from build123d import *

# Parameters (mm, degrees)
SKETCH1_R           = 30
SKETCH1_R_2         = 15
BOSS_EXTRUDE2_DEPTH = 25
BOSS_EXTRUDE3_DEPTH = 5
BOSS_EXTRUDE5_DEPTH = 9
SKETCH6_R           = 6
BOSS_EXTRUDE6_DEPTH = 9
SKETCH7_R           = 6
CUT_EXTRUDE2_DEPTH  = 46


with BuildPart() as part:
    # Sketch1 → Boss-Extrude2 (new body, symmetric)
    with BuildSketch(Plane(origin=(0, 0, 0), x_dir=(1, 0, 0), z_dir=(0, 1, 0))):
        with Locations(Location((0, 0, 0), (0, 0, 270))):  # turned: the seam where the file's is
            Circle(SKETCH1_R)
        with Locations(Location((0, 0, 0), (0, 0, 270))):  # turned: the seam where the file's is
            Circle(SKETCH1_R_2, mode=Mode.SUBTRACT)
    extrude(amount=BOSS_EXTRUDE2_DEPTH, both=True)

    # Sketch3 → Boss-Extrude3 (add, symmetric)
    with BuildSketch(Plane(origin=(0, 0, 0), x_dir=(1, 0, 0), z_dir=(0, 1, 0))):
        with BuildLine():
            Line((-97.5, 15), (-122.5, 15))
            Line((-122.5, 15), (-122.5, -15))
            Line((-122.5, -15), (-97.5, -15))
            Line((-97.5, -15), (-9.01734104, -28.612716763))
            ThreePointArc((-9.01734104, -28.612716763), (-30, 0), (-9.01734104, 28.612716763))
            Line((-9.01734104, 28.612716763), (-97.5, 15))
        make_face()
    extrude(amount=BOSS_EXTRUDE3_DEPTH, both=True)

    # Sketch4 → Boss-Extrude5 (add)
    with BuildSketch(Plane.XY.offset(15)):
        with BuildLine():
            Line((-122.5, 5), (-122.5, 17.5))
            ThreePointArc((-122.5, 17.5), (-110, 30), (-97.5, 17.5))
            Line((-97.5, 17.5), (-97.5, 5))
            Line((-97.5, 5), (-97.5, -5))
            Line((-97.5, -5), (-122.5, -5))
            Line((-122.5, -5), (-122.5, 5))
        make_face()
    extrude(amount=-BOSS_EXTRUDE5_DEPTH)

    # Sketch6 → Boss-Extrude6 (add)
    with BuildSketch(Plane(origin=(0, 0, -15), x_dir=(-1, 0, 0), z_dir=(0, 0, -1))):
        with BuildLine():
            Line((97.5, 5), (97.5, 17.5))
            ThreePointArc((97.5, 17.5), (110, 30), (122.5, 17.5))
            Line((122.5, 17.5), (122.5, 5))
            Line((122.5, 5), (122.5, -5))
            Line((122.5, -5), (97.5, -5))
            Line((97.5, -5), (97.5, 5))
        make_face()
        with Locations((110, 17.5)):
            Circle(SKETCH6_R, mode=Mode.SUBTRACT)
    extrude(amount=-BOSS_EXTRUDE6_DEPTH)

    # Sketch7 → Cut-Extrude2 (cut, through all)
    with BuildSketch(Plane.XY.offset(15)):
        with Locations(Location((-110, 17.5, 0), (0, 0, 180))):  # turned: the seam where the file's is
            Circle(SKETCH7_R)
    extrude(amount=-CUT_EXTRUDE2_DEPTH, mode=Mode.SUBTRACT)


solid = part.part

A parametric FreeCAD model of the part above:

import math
import FreeCAD as App
import Part
import Sketcher
from FreeCAD import Vector

doc = App.newDocument("Part")
body = doc.addObject("PartDesign::Body", "Body")

# Sketch on XZ plane
sketch1 = body.newObject("Sketcher::SketchObject", "Sketch")
sketch1.AttachmentSupport = (doc.getObject("XZ_Plane"), [""])
sketch1.MapMode = "FlatFace"
sketch1.addGeometry(Part.Circle(Vector(0, 0, 0), Vector(0, 0, 1), 30), False)
sketch1.addGeometry(Part.Circle(Vector(0, 0, 0), Vector(0, 0, 1), 15), False)
sketch1.addConstraint(Sketcher.Constraint("Coincident", 0, 3, -1, 1))
sketch1.addConstraint(Sketcher.Constraint("Coincident", 1, 3, -1, 1))
sketch1.addConstraint(Sketcher.Constraint("Diameter", 0, 60.0))
sketch1.addConstraint(Sketcher.Constraint("Diameter", 1, 30.0))
pad1 = body.newObject("PartDesign::Pad", "Pad")
pad1.Profile = sketch1
pad1.Length = 50
pad1.Midplane = True

# Sketch on XZ plane
sketch2 = body.newObject("Sketcher::SketchObject", "Sketch001")
sketch2.AttachmentSupport = (doc.getObject("XZ_Plane"), [""])
sketch2.MapMode = "FlatFace"
sketch2.addGeometry(Part.LineSegment(Vector(-98, -15, 0), Vector(-122, -15, 0)), False)
sketch2.addGeometry(Part.LineSegment(Vector(-122, -15, 0), Vector(-122, 15, 0)), False)
sketch2.addGeometry(Part.LineSegment(Vector(-122, 15, 0), Vector(-98, 15, 0)), False)
sketch2.addGeometry(Part.LineSegment(Vector(-98, 15, 0), Vector(-9, 29, 0)), False)
sketch2.addGeometry(Part.ArcOfCircle(Part.Circle(Vector(0, 0, 0), Vector(0, 0, 1), 30), math.radians(107), math.radians(253)), False)
sketch2.addGeometry(Part.LineSegment(Vector(-9, -29, 0), Vector(-98, -15, 0)), False)
sketch2.addConstraint(Sketcher.Constraint("Coincident", 0, 2, 1, 1))
sketch2.addConstraint(Sketcher.Constraint("Coincident", 1, 2, 2, 1))
sketch2.addConstraint(Sketcher.Constraint("Coincident", 2, 2, 3, 1))
sketch2.addConstraint(Sketcher.Constraint("Coincident", 3, 2, 4, 1))
sketch2.addConstraint(Sketcher.Constraint("Coincident", 4, 2, 5, 1))
sketch2.addConstraint(Sketcher.Constraint("Coincident", 5, 2, 0, 1))
sketch2.addConstraint(Sketcher.Constraint("Horizontal", 0))
sketch2.addConstraint(Sketcher.Constraint("Vertical", 1))
sketch2.addConstraint(Sketcher.Constraint("Horizontal", 2))
sketch2.addConstraint(Sketcher.Constraint("Coincident", 4, 3, -1, 1))
sketch2.addConstraint(Sketcher.Constraint("Symmetric", 2, 2, 5, 2, -1))
sketch2.addConstraint(Sketcher.Constraint("Vertical", 3, 2, 4, 2))
sketch2.addConstraint(Sketcher.Constraint("Radius", 4, 30.0))
sketch2.addConstraint(Sketcher.Constraint("DistanceX", 0, 2, 0, 1, 25.0))
sketch2.addConstraint(Sketcher.Constraint("DistanceY", 1, 1, 1, 2, 30.0))
sketch2.addConstraint(Sketcher.Constraint("DistanceX", 0, 2, -1, 1, 122.5))
sketch2.addConstraint(Sketcher.Constraint("DistanceX", 3, 2, -1, 1, 9.017341))
pad2 = body.newObject("PartDesign::Pad", "Pad001")
pad2.Profile = sketch2
pad2.Length = 10
pad2.Midplane = True

# Sketch on XY plane
sketch3 = body.newObject("Sketcher::SketchObject", "Sketch002")
sketch3.AttachmentSupport = (doc.getObject("XY_Plane"), [""])
sketch3.MapMode = "FlatFace"
sketch3.AttachmentOffset = App.Placement(Vector(0, 0, 15), App.Rotation())
sketch3.addGeometry(Part.ArcOfCircle(Part.Circle(Vector(-110, 18, 0), Vector(0, 0, 1), 12), math.radians(0), math.radians(180)), False)
sketch3.addGeometry(Part.LineSegment(Vector(-122, 18, 0), Vector(-122, -5, 0)), False)
sketch3.addGeometry(Part.LineSegment(Vector(-122, -5, 0), Vector(-98, -5, 0)), False)
sketch3.addGeometry(Part.LineSegment(Vector(-98, -5, 0), Vector(-98, 18, 0)), False)
sketch3.addConstraint(Sketcher.Constraint("Tangent", 0, 2, 1, 1))
sketch3.addConstraint(Sketcher.Constraint("Coincident", 1, 2, 2, 1))
sketch3.addConstraint(Sketcher.Constraint("Coincident", 2, 2, 3, 1))
sketch3.addConstraint(Sketcher.Constraint("Tangent", 3, 2, 0, 1))
sketch3.addConstraint(Sketcher.Constraint("Vertical", 1))
sketch3.addConstraint(Sketcher.Constraint("Horizontal", 2))
sketch3.addConstraint(Sketcher.Constraint("Vertical", 3))
sketch3.addConstraint(Sketcher.Constraint("Radius", 0, 12.5))
sketch3.addConstraint(Sketcher.Constraint("DistanceY", 1, 2, 1, 1, 22.5))
sketch3.addConstraint(Sketcher.Constraint("DistanceX", 0, 3, -1, 1, 110.0))
sketch3.addConstraint(Sketcher.Constraint("DistanceY", 1, 2, -1, 1, 5.0))
pad3 = body.newObject("PartDesign::Pad", "Pad002")
pad3.Profile = sketch3
pad3.Length = 9
pad3.Reversed = True

# Sketch on XY plane
sketch4 = body.newObject("Sketcher::SketchObject", "Sketch003")
sketch4.AttachmentSupport = (doc.getObject("XY_Plane"), [""])
sketch4.MapMode = "FlatFace"
sketch4.AttachmentOffset = App.Placement(Vector(0, 0, -15), App.Rotation())
sketch4.addGeometry(Part.ArcOfCircle(Part.Circle(Vector(-110, 18, 0), Vector(0, 0, 1), 12), math.radians(0), math.radians(180)), False)
sketch4.addGeometry(Part.LineSegment(Vector(-98, 18, 0), Vector(-98, -5, 0)), False)
sketch4.addGeometry(Part.LineSegment(Vector(-98, -5, 0), Vector(-122, -5, 0)), False)
sketch4.addGeometry(Part.LineSegment(Vector(-122, -5, 0), Vector(-122, 18, 0)), False)
sketch4.addGeometry(Part.Circle(Vector(-110, 18, 0), Vector(0, 0, 1), 6), False)
sketch4.addConstraint(Sketcher.Constraint("Tangent", 0, 1, 1, 1))
sketch4.addConstraint(Sketcher.Constraint("Coincident", 1, 2, 2, 1))
sketch4.addConstraint(Sketcher.Constraint("Coincident", 2, 2, 3, 1))
sketch4.addConstraint(Sketcher.Constraint("Tangent", 3, 2, 0, 2))
sketch4.addConstraint(Sketcher.Constraint("Vertical", 1))
sketch4.addConstraint(Sketcher.Constraint("Horizontal", 2))
sketch4.addConstraint(Sketcher.Constraint("Vertical", 3))
sketch4.addConstraint(Sketcher.Constraint("Coincident", 4, 3, 0, 3))
sketch4.addConstraint(Sketcher.Constraint("Diameter", 4, 12.0))
sketch4.addConstraint(Sketcher.Constraint("Radius", 0, 12.5))
sketch4.addConstraint(Sketcher.Constraint("DistanceY", 1, 2, 1, 1, 22.5))
sketch4.addConstraint(Sketcher.Constraint("DistanceX", 0, 3, -1, 1, 110.0))
sketch4.addConstraint(Sketcher.Constraint("DistanceY", 1, 2, -1, 1, 5.0))
pad4 = body.newObject("PartDesign::Pad", "Pad003")
pad4.Profile = sketch4
pad4.Length = 9

# Sketch on XY plane
sketch5 = body.newObject("Sketcher::SketchObject", "Sketch004")
sketch5.AttachmentSupport = (doc.getObject("XY_Plane"), [""])
sketch5.MapMode = "FlatFace"
sketch5.AttachmentOffset = App.Placement(Vector(0, 0, 15), App.Rotation())
sketch5.addGeometry(Part.Circle(Vector(-110, 18, 0), Vector(0, 0, 1), 6), False)
sketch5.addConstraint(Sketcher.Constraint("Diameter", 0, 12.0))
sketch5.addConstraint(Sketcher.Constraint("DistanceX", 0, 3, -1, 1, 110.0))
sketch5.addConstraint(Sketcher.Constraint("DistanceY", -1, 1, 0, 3, 17.5))
pocket1 = body.newObject("PartDesign::Pocket", "Pocket")
pocket1.Profile = sketch5
pocket1.Type = "ThroughAll"

doc.recompute()
